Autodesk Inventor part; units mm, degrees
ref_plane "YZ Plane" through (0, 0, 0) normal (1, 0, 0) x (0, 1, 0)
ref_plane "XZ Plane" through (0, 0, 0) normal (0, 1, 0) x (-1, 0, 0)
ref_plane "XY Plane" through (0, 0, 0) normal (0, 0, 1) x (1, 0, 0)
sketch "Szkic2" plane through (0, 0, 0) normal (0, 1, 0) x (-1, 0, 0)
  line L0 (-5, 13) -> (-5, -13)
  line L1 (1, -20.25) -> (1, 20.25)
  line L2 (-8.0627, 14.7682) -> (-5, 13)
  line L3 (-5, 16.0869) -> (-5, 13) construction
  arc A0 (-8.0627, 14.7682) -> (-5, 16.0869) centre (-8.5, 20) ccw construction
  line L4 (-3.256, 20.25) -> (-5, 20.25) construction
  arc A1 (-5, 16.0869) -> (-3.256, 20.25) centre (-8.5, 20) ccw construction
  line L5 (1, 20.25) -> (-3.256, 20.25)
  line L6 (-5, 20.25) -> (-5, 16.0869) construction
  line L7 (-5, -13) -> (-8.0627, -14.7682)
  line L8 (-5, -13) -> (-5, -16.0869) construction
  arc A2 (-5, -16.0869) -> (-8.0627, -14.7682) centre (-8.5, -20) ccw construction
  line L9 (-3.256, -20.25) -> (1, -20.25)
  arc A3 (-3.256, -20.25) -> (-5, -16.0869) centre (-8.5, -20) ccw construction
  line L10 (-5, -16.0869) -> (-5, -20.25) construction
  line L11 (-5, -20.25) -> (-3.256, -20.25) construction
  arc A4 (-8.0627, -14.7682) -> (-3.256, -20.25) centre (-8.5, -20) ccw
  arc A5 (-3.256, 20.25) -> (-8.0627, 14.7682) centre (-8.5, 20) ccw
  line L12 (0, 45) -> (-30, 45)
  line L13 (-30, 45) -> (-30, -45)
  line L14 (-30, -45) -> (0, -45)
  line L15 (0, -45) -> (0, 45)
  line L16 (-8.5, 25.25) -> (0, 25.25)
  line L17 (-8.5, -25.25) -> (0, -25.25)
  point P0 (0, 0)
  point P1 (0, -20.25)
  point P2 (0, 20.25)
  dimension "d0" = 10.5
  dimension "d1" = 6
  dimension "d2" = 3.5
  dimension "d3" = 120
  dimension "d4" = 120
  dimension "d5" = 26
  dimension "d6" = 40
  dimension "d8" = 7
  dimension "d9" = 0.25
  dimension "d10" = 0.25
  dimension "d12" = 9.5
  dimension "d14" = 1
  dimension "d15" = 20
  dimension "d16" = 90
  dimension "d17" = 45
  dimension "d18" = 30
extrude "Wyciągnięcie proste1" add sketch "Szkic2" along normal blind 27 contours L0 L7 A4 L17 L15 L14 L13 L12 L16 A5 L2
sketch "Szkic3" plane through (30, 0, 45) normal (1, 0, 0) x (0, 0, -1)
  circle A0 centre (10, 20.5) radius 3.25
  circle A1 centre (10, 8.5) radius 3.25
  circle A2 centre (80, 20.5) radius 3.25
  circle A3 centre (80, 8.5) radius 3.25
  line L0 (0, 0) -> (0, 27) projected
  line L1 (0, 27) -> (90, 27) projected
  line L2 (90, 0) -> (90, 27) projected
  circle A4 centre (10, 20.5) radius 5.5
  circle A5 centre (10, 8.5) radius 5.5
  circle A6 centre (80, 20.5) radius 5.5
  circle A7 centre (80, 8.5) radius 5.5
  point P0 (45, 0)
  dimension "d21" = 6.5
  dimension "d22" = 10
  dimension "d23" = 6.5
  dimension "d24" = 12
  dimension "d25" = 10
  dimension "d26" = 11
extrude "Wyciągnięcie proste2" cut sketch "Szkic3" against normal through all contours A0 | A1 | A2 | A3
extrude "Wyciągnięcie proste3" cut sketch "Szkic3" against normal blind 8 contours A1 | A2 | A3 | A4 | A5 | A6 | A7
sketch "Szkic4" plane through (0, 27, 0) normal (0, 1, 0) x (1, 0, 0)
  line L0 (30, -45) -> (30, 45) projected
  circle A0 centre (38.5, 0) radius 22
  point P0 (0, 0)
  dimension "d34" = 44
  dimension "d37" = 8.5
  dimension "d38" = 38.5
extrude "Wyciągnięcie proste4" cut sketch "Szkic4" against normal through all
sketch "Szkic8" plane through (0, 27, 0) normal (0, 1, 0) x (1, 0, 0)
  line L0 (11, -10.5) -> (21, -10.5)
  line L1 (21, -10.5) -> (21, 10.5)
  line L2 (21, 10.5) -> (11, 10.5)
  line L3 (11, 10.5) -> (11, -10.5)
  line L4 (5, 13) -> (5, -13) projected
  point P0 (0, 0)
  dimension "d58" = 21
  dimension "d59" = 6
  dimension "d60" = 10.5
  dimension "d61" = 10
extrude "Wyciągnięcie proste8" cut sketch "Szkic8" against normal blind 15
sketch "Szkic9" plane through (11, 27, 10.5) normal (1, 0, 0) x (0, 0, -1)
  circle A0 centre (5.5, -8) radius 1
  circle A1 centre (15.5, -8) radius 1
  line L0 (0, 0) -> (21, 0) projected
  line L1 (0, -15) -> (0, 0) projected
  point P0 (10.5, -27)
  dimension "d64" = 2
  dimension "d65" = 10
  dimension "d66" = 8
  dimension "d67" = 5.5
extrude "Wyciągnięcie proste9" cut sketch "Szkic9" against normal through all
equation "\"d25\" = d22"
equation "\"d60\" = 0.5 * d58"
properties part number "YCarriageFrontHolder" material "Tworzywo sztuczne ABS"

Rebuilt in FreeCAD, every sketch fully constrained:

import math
import FreeCAD as App
import Part
import Sketcher
from FreeCAD import Vector
Q = App.Units.Quantity

doc = App.newDocument("Part")
body = doc.addObject("PartDesign::Body", "Body")

sketch1 = body.newObject("Sketcher::SketchObject", "Sketch")
sketch1.AttachmentSupport = (doc.getObject("XZ_Plane"), [""])
sketch1.MapMode = "FlatFace"
sketch1.addGeometry([
    Part.LineSegment(Vector(5, -13, 0), Vector(5, 13, 0)),
    Part.LineSegment(Vector(5, 13, 0), Vector(8.0627, 14.7682, 0)),
    Part.ArcOfCircle(Part.Circle(Vector(8.5, 20, 0), Vector(0, 0, 1), 5.249986), math.radians(-94.777961), math.radians(90)),
    Part.LineSegment(Vector(8.5, 25.25, 0), Vector(0, 25.25, 0)),
    Part.LineSegment(Vector(0, 25.25, 0), Vector(0, 45, 0)),
    Part.LineSegment(Vector(0, 45, 0), Vector(30, 45, 0)),
    Part.LineSegment(Vector(30, 45, 0), Vector(30, -45, 0)),
    Part.LineSegment(Vector(30, -45, 0), Vector(0, -45, 0)),
    Part.LineSegment(Vector(0, -45, 0), Vector(0, -25.25, 0)),
    Part.LineSegment(Vector(0, -25.25, 0), Vector(8.5, -25.25, 0)),
    Part.ArcOfCircle(Part.Circle(Vector(8.5, -20, 0), Vector(0, 0, 1), 5.250044), math.radians(-90), math.radians(94.777961)),
    Part.LineSegment(Vector(8.0627, -14.7682, 0), Vector(5, -13, 0)),
], False)
sketch1.addConstraint([
    Sketcher.Constraint("Coincident", 0, 2, 1, 1),
    Sketcher.Constraint("Coincident", 1, 2, 2, 1),
    Sketcher.Constraint("Tangent", 2, 2, 3, 1),
    Sketcher.Constraint("Coincident", 3, 2, 4, 1),
    Sketcher.Constraint("Coincident", 4, 2, 5, 1),
    Sketcher.Constraint("Coincident", 5, 2, 6, 1),
    Sketcher.Constraint("Coincident", 6, 2, 7, 1),
    Sketcher.Constraint("Coincident", 7, 2, 8, 1),
    Sketcher.Constraint("Coincident", 8, 2, 9, 1),
    Sketcher.Constraint("Tangent", 9, 2, 10, 1),
    Sketcher.Constraint("Coincident", 10, 2, 11, 1),
    Sketcher.Constraint("Coincident", 11, 2, 0, 1),
    Sketcher.Constraint("Vertical", 0),
    Sketcher.Constraint("Horizontal", 3),
    Sketcher.Constraint("Vertical", 4),
    Sketcher.Constraint("Horizontal", 5),
    Sketcher.Constraint("Vertical", 6),
    Sketcher.Constraint("Horizontal", 7),
    Sketcher.Constraint("Vertical", 8),
    Sketcher.Constraint("Horizontal", 9),
    Sketcher.Constraint("Equal", 2, 10),
    Sketcher.Constraint("Symmetric", 4, 2, 7, 2, -1, 1),
    Sketcher.Constraint("Symmetric", 2, 3, 10, 3, -1),
    Sketcher.Constraint("PointOnObject", 3, 2, -2),
    Sketcher.Constraint("Vertical", 1, 2, 10, 2),
    Sketcher.Constraint("Equal", 1, 11),
    Sketcher.Constraint("DistanceX", 5, 1, 5, 2, 30.0),
    Sketcher.Constraint("DistanceY", 0, 1, 0, 2, 26.0),
    Sketcher.Constraint("DistanceY", 6, 2, 6, 1, 90.0),
    Sketcher.Constraint("Radius", 2, 5.25),
    Sketcher.Constraint("DistanceY", -1, 1, 2, 3, 20.0),
    Sketcher.Constraint("DistanceX", 0, 2, 2, 3, 3.5),
    Sketcher.Constraint("Angle", 1, Q("29.9993 deg")),
    Sketcher.Constraint("DistanceX", 3, 2, 3, 1, 8.5),
])
pad1 = body.newObject("PartDesign::Pad", "Pad")
pad1.Profile = sketch1
pad1.Length = 27
pad1.Reversed = True

sketch2 = body.newObject("Sketcher::SketchObject", "Sketch001")
sketch2.AttachmentSupport = (doc.getObject("YZ_Plane"), [""])
sketch2.MapMode = "FlatFace"
sketch2.AttachmentOffset = App.Placement(Vector(0, 0, 30), App.Rotation())
sketch2.addGeometry([
    Part.Circle(Vector(20.5, 35, 0), Vector(0, 0, 1), 3.25),
    Part.Circle(Vector(8.5, 35, 0), Vector(0, 0, 1), 3.25),
    Part.Circle(Vector(20.5, -35, 0), Vector(0, 0, 1), 3.25),
    Part.Circle(Vector(8.5, -35, 0), Vector(0, 0, 1), 3.25),
], False)
sketch2.addConstraint([
    Sketcher.Constraint("Equal", 0, 1),
    Sketcher.Constraint("Equal", 1, 2),
    Sketcher.Constraint("Equal", 2, 3),
    Sketcher.Constraint("Symmetric", 0, 3, 2, 3, -1),
    Sketcher.Constraint("Symmetric", 1, 3, 3, 3, -1),
    Sketcher.Constraint("Horizontal", 0, 3, 1, 3),
    Sketcher.Constraint("Diameter", 0, 6.5),
    Sketcher.Constraint("DistanceX", 1, 3, 0, 3, 12.0),
    Sketcher.Constraint("DistanceY", -1, 1, 0, 3, 35.0),
    Sketcher.Constraint("DistanceX", -1, 1, 0, 3, 20.5),
])
pocket1 = body.newObject("PartDesign::Pocket", "Pocket")
pocket1.Profile = sketch2
pocket1.Type = "ThroughAll"

sketch3 = body.newObject("Sketcher::SketchObject", "Sketch002")
sketch3.AttachmentSupport = (doc.getObject("YZ_Plane"), [""])
sketch3.MapMode = "FlatFace"
sketch3.AttachmentOffset = App.Placement(Vector(0, 0, 30), App.Rotation())
sketch3.addGeometry([
    Part.Circle(Vector(8.5, 35, 0), Vector(0, 0, 1), 5.5),
    Part.Circle(Vector(20.5, -35, 0), Vector(0, 0, 1), 5.5),
    Part.Circle(Vector(8.5, -35, 0), Vector(0, 0, 1), 5.5),
    Part.Circle(Vector(20.5, 35, 0), Vector(0, 0, 1), 5.5),
    Part.Circle(Vector(20.5, 35, 0), Vector(0, 0, 1), 3.25),
], False)
sketch3.addConstraint([
    Sketcher.Constraint("Coincident", 4, 3, 3, 3),
    Sketcher.Constraint("Equal", 0, 1),
    Sketcher.Constraint("Equal", 1, 2),
    Sketcher.Constraint("Equal", 2, 3),
    Sketcher.Constraint("Symmetric", 0, 3, 2, 3, -1),
    Sketcher.Constraint("Symmetric", 1, 3, 3, 3, -1),
    Sketcher.Constraint("Horizontal", 1, 3, 2, 3),
    Sketcher.Constraint("Diameter", 0, 11.0),
    Sketcher.Constraint("Diameter", 4, 6.5),
    Sketcher.Constraint("DistanceX", 0, 3, 1, 3, 12.0),
    Sketcher.Constraint("DistanceY", -1, 1, 0, 3, 35.0),
    Sketcher.Constraint("DistanceX", -1, 1, 0, 3, 8.5),
])
pocket2 = body.newObject("PartDesign::Pocket", "Pocket001")
pocket2.Profile = sketch3
pocket2.Length = 8

sketch4 = body.newObject("Sketcher::SketchObject", "Sketch003")
sketch4.AttachmentSupport = (doc.getObject("XZ_Plane"), [""])
sketch4.MapMode = "FlatFace"
sketch4.AttachmentOffset = App.Placement(Vector(0, 0, -27), App.Rotation())
sketch4.addGeometry(Part.Circle(Vector(38.5, 0, 0), Vector(0, 0, 1), 22), False)
sketch4.addConstraint([
    Sketcher.Constraint("PointOnObject", 0, 3, -1),
    Sketcher.Constraint("Diameter", 0, 44.0),
    Sketcher.Constraint("DistanceX", -1, 1, 0, 3, 38.5),
])
pocket3 = body.newObject("PartDesign::Pocket", "Pocket002")
pocket3.Profile = sketch4
pocket3.Type = "ThroughAll"
pocket3.Reversed = True

sketch5 = body.newObject("Sketcher::SketchObject", "Sketch004")
sketch5.AttachmentSupport = (doc.getObject("XZ_Plane"), [""])
sketch5.MapMode = "FlatFace"
sketch5.AttachmentOffset = App.Placement(Vector(0, 0, -27), App.Rotation())
sketch5.addGeometry([
    Part.LineSegment(Vector(11, -10.5, 0), Vector(11, 10.5, 0)),
    Part.LineSegment(Vector(11, 10.5, 0), Vector(21, 10.5, 0)),
    Part.LineSegment(Vector(21, 10.5, 0), Vector(21, -10.5, 0)),
    Part.LineSegment(Vector(21, -10.5, 0), Vector(11, -10.5, 0)),
], False)
sketch5.addConstraint([
    Sketcher.Constraint("Coincident", 0, 2, 1, 1),
    Sketcher.Constraint("Coincident", 1, 2, 2, 1),
    Sketcher.Constraint("Coincident", 2, 2, 3, 1),
    Sketcher.Constraint("Coincident", 3, 2, 0, 1),
    Sketcher.Constraint("Vertical", 0),
    Sketcher.Constraint("Horizontal", 1),
    Sketcher.Constraint("Vertical", 2),
    Sketcher.Constraint("Horizontal", 3),
    Sketcher.Constraint("DistanceX", 1, 1, 1, 2, 10.0),
    Sketcher.Constraint("DistanceY", 0, 1, 0, 2, 21.0),
    Sketcher.Constraint("DistanceX", -1, 1, 1, 2, 21.0),
    Sketcher.Constraint("DistanceY", -1, 1, 0, 2, 10.5),
])
pocket4 = body.newObject("PartDesign::Pocket", "Pocket003")
pocket4.Profile = sketch5
pocket4.Length = 15
pocket4.Reversed = True

sketch6 = body.newObject("Sketcher::SketchObject", "Sketch005")
sketch6.AttachmentSupport = (doc.getObject("YZ_Plane"), [""])
sketch6.MapMode = "FlatFace"
sketch6.AttachmentOffset = App.Placement(Vector(0, 0, 11), App.Rotation())
sketch6.addGeometry([
    Part.Circle(Vector(19, 5, 0), Vector(0, 0, 1), 1),
    Part.Circle(Vector(19, -5, 0), Vector(0, 0, 1), 1),
], False)
sketch6.addConstraint([
    Sketcher.Constraint("Equal", 0, 1),
    Sketcher.Constraint("Symmetric", 0, 3, 1, 3, -1),
    Sketcher.Constraint("Diameter", 0, 2.0),
    Sketcher.Constraint("DistanceY", 1, 3, 0, 3, 10.0),
    Sketcher.Constraint("DistanceX", -1, 1, 0, 3, 19.0),
])
pocket5 = body.newObject("PartDesign::Pocket", "Pocket004")
pocket5.Profile = sketch6
pocket5.Type = "ThroughAll"

doc.recompute()
